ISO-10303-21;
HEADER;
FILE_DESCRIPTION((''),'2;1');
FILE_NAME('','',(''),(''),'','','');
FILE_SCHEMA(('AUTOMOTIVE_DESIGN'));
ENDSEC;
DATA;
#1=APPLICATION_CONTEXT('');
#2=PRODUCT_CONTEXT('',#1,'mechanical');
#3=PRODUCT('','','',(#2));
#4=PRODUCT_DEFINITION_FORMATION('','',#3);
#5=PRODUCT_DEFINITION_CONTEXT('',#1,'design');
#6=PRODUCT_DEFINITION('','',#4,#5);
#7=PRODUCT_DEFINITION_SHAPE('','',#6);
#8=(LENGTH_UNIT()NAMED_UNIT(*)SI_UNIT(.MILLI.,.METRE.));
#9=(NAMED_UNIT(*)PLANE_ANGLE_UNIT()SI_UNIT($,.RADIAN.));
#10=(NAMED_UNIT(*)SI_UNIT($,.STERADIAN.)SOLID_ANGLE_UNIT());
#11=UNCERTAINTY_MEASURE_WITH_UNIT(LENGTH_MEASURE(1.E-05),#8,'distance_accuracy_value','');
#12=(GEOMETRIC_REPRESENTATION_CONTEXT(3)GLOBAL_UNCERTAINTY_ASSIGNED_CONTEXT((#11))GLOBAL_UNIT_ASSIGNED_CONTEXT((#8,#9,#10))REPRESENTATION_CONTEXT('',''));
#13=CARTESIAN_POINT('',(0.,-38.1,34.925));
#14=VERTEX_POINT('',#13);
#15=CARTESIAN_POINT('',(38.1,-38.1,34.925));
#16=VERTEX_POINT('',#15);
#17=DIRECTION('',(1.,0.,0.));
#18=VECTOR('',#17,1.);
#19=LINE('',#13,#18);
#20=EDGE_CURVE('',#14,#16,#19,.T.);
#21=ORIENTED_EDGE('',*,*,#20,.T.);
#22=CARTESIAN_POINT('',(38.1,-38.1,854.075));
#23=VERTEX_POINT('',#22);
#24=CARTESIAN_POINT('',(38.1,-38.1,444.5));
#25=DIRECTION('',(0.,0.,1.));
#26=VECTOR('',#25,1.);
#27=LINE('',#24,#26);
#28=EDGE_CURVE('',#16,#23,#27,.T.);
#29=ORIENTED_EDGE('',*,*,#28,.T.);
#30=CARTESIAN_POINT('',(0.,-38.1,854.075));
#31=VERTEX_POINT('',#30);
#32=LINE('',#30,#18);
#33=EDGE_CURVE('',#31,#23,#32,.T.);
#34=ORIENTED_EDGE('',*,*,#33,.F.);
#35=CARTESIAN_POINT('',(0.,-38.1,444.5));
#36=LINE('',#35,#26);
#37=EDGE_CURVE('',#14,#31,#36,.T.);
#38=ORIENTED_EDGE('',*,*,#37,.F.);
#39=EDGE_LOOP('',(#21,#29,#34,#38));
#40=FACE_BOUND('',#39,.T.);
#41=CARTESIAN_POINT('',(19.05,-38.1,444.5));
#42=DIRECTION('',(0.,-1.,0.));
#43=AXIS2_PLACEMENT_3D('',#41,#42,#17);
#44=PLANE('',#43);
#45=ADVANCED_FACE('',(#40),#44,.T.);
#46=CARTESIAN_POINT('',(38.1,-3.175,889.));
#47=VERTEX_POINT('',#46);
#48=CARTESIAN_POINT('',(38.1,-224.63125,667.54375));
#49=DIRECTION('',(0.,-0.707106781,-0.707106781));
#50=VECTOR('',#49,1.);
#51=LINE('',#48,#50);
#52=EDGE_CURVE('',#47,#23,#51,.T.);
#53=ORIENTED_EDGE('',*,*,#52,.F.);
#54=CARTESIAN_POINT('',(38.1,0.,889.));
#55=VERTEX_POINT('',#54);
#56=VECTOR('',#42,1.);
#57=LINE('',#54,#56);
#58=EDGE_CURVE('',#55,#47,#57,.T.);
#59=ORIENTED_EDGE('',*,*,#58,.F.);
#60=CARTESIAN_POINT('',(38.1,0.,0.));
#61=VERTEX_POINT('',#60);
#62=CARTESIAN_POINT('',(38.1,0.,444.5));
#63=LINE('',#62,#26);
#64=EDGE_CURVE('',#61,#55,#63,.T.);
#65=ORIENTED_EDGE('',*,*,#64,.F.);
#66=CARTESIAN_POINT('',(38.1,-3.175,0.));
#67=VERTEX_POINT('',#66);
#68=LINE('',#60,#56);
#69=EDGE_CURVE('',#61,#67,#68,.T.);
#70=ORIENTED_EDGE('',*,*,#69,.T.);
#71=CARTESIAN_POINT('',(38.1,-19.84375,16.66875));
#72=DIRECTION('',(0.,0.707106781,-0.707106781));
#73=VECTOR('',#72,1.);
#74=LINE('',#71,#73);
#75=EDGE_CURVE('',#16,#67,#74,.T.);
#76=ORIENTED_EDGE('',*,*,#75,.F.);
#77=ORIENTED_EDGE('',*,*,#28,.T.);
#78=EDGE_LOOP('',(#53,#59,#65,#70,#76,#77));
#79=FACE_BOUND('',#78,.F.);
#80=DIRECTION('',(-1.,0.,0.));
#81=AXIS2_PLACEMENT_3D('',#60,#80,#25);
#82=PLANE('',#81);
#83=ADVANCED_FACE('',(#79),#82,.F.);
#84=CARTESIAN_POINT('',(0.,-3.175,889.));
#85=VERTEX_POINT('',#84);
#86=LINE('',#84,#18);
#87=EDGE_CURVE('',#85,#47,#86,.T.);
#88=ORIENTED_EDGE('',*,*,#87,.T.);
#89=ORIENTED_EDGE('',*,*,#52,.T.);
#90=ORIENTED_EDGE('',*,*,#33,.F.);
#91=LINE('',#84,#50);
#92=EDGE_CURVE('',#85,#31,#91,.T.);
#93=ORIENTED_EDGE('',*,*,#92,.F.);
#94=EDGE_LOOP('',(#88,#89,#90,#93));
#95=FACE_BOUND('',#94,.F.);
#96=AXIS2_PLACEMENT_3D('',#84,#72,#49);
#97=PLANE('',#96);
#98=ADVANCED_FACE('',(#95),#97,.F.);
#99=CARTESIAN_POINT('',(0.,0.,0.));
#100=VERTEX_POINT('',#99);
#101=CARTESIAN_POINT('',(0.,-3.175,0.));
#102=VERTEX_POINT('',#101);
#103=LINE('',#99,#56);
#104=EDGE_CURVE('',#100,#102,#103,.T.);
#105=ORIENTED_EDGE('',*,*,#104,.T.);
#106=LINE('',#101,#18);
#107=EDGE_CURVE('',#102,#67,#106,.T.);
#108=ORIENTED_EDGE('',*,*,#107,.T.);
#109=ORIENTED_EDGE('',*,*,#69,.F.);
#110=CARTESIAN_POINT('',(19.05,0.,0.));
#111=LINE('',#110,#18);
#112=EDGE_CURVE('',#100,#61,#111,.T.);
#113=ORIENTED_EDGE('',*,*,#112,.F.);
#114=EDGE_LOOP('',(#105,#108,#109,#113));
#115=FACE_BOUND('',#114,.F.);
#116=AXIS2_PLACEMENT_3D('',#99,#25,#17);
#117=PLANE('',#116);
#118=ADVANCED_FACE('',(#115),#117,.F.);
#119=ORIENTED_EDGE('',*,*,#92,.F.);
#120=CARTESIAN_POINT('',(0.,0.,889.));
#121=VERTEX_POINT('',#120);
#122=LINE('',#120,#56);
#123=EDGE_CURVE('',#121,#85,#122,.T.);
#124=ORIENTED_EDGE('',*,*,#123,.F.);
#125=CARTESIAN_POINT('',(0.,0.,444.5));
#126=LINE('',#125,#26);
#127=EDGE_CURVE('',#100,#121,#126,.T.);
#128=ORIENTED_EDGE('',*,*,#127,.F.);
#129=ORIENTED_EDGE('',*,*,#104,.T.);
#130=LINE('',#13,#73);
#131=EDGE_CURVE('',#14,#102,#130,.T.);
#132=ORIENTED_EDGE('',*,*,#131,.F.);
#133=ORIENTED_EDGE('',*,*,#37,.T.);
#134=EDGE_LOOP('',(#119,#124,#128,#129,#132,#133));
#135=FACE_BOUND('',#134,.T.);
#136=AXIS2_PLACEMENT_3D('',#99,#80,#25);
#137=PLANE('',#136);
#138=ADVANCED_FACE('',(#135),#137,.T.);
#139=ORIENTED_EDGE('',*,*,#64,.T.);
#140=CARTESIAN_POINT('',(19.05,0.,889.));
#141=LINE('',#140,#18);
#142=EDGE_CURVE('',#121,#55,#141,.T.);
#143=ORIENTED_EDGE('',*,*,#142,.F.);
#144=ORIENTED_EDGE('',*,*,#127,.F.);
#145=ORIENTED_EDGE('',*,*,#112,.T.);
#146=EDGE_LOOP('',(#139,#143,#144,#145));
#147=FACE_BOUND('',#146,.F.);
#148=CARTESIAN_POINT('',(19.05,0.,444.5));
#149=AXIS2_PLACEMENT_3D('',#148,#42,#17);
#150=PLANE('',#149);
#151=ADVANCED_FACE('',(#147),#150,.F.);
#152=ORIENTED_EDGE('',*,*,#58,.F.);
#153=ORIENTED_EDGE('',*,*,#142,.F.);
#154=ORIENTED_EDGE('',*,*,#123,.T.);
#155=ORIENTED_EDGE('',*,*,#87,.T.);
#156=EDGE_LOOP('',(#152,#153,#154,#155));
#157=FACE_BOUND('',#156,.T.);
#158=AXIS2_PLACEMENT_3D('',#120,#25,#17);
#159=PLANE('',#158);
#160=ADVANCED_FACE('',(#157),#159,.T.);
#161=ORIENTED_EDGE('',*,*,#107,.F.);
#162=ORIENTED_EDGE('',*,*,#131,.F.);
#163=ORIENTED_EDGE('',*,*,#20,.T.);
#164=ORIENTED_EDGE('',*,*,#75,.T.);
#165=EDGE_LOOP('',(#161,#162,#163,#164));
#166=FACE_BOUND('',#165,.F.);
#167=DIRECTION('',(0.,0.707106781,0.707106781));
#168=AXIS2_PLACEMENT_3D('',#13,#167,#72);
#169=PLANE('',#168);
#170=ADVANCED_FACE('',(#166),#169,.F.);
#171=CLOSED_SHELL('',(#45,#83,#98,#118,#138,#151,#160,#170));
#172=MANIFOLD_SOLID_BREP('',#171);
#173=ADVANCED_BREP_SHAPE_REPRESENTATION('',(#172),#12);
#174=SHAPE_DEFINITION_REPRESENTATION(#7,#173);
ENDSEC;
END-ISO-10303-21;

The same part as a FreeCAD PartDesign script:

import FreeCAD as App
import Part
import Sketcher

V = App.Vector
Q = App.Units.Quantity

doc = App.newDocument("Part")
body = doc.addObject("PartDesign::Body", "Body")

# Sketch on XZ plane
sketch1 = body.newObject("Sketcher::SketchObject", "Sketch")
sketch1.AttachmentSupport = (doc.getObject("XZ_Plane"), [""])
sketch1.MapMode = "FlatFace"
sketch1.addGeometry(Part.LineSegment(V(0, 889, 0), V(0, 0, 0)), False)
sketch1.addGeometry(Part.LineSegment(V(0, 0, 0), V(38, 0, 0)), False)
sketch1.addGeometry(Part.LineSegment(V(38, 0, 0), V(38, 889, 0)), False)
sketch1.addGeometry(Part.LineSegment(V(38, 889, 0), V(0, 889, 0)), False)
sketch1.addConstraint(Sketcher.Constraint("Coincident", 0, 2, 1, 1))
sketch1.addConstraint(Sketcher.Constraint("Coincident", 1, 2, 2, 1))
sketch1.addConstraint(Sketcher.Constraint("Coincident", 2, 2, 3, 1))
sketch1.addConstraint(Sketcher.Constraint("Coincident", 3, 2, 0, 1))
sketch1.addConstraint(Sketcher.Constraint("Vertical", 0))
sketch1.addConstraint(Sketcher.Constraint("Horizontal", 1))
sketch1.addConstraint(Sketcher.Constraint("Vertical", 2))
sketch1.addConstraint(Sketcher.Constraint("Horizontal", 3))
sketch1.addConstraint(Sketcher.Constraint("Coincident", 0, 2, -1, 1))
sketch1.addConstraint(Sketcher.Constraint("DistanceY", 0, 2, 0, 1, Q("35 in")))
sketch1.addConstraint(Sketcher.Constraint("DistanceX", 1, 1, 1, 2, Q("1.5 in")))
pad1 = body.newObject("PartDesign::Pad", "Pad")
pad1.Profile = sketch1
pad1.Length = Q("1.5 in")

# Sketch on YZ plane
sketch2 = body.newObject("Sketcher::SketchObject", "Sketch001")
sketch2.AttachmentSupport = (doc.getObject("YZ_Plane"), [""])
sketch2.MapMode = "FlatFace"
sketch2.addGeometry(Part.LineSegment(V(-38, 889, 0), V(-3, 889, 0)), False)
sketch2.addGeometry(Part.LineSegment(V(-3, 889, 0), V(-38, 854, 0)), False)
sketch2.addGeometry(Part.LineSegment(V(-38, 854, 0), V(-38, 889, 0)), False)
sketch2.addGeometry(Part.LineSegment(V(-38, 35, 0), V(-3, 0, 0)), False)
sketch2.addGeometry(Part.LineSegment(V(-3, 0, 0), V(-38, 0, 0)), False)
sketch2.addGeometry(Part.LineSegment(V(-38, 0, 0), V(-38, 35, 0)), False)
sketch2.addConstraint(Sketcher.Constraint("Coincident", 0, 2, 1, 1))
sketch2.addConstraint(Sketcher.Constraint("Coincident", 1, 2, 2, 1))
sketch2.addConstraint(Sketcher.Constraint("Coincident", 2, 2, 0, 1))
sketch2.addConstraint(Sketcher.Constraint("Coincident", 3, 2, 4, 1))
sketch2.addConstraint(Sketcher.Constraint("Coincident", 4, 2, 5, 1))
sketch2.addConstraint(Sketcher.Constraint("Coincident", 5, 2, 3, 1))
sketch2.addConstraint(Sketcher.Constraint("Horizontal", 0))
sketch2.addConstraint(Sketcher.Constraint("Vertical", 2))
sketch2.addConstraint(Sketcher.Constraint("Horizontal", 4))
sketch2.addConstraint(Sketcher.Constraint("Vertical", 5))
sketch2.addConstraint(Sketcher.Constraint("PointOnObject", 3, 2, -1))
sketch2.addConstraint(Sketcher.Constraint("Perpendicular", 1, 3))
sketch2.addConstraint(Sketcher.Constraint("Vertical", 0, 2, 3, 2))
sketch2.addConstraint(Sketcher.Constraint("Vertical", 2, 2, 4, 2))
sketch2.addConstraint(Sketcher.Constraint("Equal", 4, 2))
sketch2.addConstraint(Sketcher.Constraint("DistanceY", -1, 1, 0, 2, Q("35 in")))
sketch2.addConstraint(Sketcher.Constraint("DistanceX", 1, 2, -1, 1, Q("1.5 in")))
sketch2.addConstraint(Sketcher.Constraint("DistanceX", 0, 1, 0, 2, Q("1.375 in")))
pocket1 = body.newObject("PartDesign::Pocket", "Pocket")
pocket1.Profile = sketch2
pocket1.Type = "ThroughAll"
pocket1.Reversed = True

doc.recompute()
